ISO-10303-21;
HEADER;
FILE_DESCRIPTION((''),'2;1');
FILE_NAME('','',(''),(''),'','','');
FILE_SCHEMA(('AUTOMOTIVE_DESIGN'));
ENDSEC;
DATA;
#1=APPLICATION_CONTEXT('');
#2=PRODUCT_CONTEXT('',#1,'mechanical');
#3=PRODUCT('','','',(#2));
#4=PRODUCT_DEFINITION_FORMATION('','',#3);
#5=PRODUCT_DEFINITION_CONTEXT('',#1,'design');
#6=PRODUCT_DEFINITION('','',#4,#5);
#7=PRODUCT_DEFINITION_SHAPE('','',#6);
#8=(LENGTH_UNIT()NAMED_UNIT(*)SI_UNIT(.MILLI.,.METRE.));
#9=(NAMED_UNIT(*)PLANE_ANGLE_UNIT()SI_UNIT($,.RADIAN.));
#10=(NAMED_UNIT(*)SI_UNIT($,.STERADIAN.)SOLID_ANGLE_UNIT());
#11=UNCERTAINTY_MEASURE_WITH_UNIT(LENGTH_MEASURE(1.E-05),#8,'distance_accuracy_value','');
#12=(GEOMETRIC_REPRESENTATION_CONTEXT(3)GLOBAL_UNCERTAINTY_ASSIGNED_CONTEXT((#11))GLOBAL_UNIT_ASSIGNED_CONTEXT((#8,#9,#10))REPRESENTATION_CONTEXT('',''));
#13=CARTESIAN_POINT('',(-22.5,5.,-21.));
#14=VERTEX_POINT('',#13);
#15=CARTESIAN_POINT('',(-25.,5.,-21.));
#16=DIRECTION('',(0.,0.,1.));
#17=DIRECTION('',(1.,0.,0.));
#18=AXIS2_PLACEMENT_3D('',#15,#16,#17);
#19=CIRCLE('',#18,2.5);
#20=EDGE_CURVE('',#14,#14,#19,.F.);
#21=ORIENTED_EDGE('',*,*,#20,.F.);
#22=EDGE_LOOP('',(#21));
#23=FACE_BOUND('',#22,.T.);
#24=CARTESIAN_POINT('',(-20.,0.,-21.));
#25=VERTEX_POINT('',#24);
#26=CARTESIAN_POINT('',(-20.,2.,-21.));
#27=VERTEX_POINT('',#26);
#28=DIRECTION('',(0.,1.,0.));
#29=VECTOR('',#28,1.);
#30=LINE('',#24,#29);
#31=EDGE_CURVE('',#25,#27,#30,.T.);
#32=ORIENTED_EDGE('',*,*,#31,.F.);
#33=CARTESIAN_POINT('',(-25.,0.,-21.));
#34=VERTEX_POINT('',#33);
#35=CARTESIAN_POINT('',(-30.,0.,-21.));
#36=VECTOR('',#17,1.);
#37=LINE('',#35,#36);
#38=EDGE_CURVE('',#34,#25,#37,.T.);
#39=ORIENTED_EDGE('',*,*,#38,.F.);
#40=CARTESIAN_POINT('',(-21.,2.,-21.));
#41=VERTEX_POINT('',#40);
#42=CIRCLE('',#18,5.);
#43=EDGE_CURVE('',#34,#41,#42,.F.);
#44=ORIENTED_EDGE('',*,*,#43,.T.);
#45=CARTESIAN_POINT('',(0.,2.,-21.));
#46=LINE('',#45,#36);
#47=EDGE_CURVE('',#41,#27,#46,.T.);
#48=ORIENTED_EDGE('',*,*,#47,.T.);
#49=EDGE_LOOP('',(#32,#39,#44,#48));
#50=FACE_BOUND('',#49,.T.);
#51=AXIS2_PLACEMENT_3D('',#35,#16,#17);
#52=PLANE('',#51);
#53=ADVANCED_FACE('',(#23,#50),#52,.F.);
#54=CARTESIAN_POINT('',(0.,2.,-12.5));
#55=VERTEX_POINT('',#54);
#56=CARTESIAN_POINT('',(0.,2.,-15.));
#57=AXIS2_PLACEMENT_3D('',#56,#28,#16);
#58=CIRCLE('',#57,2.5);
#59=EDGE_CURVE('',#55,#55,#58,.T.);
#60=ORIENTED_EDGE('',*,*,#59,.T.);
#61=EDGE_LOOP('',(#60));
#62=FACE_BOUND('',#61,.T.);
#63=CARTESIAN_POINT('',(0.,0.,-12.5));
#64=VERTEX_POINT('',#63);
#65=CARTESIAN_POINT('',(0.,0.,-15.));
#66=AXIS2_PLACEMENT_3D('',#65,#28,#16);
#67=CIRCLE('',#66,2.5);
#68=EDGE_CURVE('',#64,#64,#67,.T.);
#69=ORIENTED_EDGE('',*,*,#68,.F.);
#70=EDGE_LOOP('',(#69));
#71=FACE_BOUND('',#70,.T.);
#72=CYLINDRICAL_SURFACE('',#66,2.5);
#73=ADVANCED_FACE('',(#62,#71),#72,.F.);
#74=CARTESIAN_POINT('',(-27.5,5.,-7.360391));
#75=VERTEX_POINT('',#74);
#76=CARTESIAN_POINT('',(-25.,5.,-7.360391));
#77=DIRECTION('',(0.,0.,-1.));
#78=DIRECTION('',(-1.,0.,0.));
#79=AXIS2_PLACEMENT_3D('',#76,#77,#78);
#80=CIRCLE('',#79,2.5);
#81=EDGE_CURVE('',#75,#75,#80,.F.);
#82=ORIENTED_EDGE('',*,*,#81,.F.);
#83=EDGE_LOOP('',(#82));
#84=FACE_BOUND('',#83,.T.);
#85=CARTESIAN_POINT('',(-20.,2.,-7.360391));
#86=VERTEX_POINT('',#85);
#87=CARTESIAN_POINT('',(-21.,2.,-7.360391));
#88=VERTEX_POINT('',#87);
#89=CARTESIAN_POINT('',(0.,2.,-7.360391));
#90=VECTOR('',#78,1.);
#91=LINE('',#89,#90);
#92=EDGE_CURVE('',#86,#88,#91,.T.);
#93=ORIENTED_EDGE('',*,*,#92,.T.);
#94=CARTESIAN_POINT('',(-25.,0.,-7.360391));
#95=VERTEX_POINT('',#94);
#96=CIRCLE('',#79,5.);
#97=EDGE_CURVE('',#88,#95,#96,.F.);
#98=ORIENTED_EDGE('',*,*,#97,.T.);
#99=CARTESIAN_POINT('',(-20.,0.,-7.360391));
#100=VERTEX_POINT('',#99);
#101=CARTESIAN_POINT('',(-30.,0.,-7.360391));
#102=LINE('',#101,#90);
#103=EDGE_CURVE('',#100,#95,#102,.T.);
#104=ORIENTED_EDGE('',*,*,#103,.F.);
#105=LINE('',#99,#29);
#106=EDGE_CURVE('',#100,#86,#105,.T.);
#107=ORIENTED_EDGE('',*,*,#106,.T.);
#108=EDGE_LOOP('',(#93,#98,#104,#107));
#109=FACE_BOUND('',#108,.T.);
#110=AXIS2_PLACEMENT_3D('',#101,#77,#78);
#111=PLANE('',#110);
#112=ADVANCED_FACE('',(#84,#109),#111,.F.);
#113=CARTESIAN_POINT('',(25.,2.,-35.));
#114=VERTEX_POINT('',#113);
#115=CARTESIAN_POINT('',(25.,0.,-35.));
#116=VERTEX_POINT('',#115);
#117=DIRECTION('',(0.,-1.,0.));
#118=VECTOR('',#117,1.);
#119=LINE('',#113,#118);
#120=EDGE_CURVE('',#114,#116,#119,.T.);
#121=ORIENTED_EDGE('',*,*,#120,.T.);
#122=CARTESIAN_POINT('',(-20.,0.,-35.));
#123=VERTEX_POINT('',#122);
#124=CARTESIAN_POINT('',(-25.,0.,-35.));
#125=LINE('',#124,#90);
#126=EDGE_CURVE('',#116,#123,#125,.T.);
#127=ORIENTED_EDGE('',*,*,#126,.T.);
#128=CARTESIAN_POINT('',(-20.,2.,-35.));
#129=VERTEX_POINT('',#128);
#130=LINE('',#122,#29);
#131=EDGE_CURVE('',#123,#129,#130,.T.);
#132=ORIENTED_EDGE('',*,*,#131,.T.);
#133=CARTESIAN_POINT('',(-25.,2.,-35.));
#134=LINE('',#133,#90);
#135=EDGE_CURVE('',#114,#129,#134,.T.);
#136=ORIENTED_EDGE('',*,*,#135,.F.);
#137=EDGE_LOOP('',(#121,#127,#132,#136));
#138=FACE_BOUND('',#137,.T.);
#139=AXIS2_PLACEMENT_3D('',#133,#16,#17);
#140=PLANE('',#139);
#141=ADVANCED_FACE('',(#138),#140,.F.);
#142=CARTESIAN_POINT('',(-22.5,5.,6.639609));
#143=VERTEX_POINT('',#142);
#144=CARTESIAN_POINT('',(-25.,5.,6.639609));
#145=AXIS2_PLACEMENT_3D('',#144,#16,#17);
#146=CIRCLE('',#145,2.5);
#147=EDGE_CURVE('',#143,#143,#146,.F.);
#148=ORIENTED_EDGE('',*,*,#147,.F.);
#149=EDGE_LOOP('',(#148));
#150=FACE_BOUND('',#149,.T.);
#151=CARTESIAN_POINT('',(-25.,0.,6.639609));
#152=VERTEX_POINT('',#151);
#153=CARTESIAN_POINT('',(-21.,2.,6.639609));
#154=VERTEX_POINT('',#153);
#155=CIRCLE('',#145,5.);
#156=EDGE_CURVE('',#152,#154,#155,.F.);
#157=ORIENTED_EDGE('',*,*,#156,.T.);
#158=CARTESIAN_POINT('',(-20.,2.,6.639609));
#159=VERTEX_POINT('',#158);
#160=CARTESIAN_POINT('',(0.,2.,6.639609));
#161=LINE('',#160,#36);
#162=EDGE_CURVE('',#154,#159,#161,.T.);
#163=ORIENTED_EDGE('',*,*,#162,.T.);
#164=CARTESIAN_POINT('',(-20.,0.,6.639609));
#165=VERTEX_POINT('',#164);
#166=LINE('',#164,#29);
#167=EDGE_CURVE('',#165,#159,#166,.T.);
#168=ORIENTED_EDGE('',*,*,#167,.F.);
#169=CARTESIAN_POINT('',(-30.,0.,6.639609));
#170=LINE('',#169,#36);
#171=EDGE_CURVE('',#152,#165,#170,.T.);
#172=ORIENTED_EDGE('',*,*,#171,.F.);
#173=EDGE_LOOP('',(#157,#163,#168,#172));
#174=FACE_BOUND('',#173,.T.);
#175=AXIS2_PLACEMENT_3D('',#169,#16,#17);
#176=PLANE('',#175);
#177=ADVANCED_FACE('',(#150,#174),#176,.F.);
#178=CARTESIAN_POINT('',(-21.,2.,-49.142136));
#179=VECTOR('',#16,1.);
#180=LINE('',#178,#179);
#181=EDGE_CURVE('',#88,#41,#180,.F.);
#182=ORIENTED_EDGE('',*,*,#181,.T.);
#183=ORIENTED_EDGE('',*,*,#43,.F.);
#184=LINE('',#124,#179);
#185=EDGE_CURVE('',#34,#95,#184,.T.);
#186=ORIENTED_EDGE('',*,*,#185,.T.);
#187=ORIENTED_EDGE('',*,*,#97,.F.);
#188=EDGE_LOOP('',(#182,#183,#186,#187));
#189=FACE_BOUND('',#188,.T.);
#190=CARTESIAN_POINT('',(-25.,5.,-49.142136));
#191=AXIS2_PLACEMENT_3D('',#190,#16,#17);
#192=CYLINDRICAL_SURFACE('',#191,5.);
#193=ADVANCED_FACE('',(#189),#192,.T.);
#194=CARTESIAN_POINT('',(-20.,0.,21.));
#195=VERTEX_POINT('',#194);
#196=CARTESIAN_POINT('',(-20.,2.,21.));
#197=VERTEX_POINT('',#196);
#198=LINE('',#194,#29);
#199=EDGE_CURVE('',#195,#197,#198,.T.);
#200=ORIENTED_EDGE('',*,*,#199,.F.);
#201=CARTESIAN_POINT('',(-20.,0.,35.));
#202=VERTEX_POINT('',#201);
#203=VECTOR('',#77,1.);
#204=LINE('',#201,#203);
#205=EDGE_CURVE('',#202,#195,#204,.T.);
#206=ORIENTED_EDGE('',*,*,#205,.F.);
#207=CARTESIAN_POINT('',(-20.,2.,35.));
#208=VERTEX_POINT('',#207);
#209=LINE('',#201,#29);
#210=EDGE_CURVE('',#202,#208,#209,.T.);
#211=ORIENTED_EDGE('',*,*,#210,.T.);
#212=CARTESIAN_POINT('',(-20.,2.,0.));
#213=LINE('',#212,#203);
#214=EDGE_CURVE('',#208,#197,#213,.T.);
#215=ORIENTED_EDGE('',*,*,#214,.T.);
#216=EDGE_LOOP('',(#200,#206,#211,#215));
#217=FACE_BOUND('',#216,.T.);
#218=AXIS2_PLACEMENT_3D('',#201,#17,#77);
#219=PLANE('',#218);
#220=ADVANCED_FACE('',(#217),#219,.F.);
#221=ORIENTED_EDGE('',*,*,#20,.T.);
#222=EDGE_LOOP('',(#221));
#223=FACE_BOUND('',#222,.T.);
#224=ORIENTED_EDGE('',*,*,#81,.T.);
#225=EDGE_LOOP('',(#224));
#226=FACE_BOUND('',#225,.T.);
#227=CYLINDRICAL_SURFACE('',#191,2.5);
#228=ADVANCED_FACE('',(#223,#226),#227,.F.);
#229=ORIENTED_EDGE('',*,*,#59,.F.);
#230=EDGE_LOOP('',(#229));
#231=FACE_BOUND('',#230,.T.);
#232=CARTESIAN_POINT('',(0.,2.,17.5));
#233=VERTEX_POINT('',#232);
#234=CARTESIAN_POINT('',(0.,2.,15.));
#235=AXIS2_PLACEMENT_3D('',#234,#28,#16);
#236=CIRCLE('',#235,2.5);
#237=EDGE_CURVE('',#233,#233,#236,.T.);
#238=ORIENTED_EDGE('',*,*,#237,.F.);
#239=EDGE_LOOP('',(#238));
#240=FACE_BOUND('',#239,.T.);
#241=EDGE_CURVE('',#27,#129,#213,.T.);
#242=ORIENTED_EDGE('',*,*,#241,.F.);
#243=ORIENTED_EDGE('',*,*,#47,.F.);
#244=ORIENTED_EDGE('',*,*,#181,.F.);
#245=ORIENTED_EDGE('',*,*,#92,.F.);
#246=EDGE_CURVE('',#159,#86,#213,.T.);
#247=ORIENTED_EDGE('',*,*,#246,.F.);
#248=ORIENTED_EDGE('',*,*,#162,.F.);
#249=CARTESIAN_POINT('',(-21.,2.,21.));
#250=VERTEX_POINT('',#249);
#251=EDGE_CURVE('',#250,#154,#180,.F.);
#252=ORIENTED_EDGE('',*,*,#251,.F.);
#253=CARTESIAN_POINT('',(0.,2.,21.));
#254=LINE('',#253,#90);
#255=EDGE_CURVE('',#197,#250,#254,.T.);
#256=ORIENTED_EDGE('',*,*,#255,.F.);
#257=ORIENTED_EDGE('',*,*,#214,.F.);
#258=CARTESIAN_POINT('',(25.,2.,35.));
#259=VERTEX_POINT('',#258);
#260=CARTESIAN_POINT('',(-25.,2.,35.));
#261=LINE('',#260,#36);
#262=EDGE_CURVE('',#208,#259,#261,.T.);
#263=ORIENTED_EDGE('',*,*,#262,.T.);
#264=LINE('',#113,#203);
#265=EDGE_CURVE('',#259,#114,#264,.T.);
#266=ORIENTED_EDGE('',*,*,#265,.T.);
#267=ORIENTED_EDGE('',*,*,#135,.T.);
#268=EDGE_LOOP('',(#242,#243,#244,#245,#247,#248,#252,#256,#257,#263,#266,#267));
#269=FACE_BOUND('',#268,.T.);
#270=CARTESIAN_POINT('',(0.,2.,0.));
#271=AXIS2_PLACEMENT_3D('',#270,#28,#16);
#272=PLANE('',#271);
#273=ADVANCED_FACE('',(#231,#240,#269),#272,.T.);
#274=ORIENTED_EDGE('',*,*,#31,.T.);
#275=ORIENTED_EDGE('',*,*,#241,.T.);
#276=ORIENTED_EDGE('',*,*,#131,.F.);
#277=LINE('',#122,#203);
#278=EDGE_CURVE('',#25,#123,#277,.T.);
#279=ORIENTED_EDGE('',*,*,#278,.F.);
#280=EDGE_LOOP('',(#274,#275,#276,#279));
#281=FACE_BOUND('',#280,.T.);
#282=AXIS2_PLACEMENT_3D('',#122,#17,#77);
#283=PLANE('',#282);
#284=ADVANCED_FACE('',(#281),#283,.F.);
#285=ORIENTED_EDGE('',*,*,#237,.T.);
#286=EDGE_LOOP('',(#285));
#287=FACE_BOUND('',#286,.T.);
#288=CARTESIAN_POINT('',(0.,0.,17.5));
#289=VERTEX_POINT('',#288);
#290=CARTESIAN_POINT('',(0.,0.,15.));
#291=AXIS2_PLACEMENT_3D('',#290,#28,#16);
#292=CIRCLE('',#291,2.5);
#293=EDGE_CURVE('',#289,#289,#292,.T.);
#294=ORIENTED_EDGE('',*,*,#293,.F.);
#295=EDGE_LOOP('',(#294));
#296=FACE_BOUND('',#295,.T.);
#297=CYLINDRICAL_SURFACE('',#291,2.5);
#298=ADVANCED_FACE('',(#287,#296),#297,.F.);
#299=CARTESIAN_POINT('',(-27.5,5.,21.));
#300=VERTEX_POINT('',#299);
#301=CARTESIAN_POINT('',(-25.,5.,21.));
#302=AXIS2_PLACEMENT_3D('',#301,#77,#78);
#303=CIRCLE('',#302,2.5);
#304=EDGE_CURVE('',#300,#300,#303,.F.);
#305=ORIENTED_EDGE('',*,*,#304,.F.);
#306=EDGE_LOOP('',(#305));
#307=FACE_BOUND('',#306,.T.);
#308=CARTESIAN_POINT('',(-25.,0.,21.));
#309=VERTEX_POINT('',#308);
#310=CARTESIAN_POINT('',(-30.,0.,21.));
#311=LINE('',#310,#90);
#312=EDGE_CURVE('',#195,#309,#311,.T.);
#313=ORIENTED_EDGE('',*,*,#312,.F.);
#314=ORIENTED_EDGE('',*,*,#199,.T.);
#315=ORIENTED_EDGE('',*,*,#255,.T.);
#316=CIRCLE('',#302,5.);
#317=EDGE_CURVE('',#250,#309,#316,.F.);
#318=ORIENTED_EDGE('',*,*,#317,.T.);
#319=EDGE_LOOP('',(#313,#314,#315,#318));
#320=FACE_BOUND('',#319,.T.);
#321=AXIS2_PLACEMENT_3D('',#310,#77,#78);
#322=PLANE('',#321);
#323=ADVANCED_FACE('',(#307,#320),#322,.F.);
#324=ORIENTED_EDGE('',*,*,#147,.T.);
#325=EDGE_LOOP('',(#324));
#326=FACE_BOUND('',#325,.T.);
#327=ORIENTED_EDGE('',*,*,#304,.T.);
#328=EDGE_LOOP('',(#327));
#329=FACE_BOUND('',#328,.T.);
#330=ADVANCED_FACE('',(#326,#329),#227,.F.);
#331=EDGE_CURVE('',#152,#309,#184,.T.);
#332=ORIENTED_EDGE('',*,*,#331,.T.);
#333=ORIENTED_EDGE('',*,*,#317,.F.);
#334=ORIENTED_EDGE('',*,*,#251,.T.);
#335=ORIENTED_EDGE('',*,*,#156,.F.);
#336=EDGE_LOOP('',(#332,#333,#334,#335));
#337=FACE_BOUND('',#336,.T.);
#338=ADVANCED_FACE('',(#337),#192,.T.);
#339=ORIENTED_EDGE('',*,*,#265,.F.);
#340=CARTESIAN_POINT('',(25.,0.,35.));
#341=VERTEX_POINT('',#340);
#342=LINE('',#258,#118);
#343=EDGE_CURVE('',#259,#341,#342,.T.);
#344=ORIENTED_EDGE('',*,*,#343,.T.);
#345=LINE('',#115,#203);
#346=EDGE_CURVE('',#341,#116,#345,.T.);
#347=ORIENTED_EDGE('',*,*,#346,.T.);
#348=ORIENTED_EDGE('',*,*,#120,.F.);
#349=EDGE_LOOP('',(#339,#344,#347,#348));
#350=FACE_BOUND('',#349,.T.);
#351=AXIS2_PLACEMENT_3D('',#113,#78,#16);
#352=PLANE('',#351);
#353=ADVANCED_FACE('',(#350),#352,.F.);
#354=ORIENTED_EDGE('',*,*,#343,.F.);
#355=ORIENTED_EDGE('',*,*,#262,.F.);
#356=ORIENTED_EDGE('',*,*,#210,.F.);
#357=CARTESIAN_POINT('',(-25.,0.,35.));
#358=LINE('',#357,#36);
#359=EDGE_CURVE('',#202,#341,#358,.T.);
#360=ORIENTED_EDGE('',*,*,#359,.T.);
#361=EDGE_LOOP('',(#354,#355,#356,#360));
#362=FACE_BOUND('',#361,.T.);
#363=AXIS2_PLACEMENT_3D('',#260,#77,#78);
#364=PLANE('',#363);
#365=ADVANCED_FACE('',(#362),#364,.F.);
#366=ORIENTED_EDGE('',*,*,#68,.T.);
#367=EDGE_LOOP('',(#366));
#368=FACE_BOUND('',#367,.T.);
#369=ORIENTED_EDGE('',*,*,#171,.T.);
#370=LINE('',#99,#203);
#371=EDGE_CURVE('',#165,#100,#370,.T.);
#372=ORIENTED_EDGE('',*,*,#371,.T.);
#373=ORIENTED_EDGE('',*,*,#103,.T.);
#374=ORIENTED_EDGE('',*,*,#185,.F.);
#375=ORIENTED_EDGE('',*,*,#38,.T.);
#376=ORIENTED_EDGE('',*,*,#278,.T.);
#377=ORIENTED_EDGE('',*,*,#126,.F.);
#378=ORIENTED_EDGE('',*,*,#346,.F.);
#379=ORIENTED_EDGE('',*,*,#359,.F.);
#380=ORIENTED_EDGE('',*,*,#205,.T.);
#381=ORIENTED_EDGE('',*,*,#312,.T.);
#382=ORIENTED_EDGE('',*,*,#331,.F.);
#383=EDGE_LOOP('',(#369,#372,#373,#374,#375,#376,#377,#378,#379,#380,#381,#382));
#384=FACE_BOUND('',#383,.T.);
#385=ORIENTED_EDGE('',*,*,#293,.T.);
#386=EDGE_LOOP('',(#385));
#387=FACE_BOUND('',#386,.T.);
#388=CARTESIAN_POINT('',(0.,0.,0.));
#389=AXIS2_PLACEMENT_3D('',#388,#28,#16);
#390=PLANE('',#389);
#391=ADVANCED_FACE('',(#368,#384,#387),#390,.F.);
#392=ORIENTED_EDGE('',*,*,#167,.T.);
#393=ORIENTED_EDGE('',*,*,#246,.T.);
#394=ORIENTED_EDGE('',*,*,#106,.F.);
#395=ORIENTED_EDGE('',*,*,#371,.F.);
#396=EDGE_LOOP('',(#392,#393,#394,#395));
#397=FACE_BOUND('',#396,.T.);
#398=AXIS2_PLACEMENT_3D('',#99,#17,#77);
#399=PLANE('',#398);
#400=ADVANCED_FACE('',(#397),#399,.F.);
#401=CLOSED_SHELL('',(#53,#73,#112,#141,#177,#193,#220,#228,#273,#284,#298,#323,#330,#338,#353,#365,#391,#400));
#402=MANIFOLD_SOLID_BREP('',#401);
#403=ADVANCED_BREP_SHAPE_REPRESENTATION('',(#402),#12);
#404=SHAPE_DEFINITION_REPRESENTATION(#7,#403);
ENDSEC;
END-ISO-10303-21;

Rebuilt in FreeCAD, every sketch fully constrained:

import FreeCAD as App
import Part
import Sketcher

V = App.Vector

doc = App.newDocument("Part")
body = doc.addObject("PartDesign::Body", "Body")

# Sketch on XZ plane
sketch1 = body.newObject("Sketcher::SketchObject", "Sketch")
sketch1.AttachmentSupport = (doc.getObject("XZ_Plane"), [""])
sketch1.MapMode = "FlatFace"
sketch1.addGeometry(Part.LineSegment(V(-25, -35, 0), V(-25, 35, 0)), False)
sketch1.addGeometry(Part.LineSegment(V(-25, 35, 0), V(25, 35, 0)), False)
sketch1.addGeometry(Part.LineSegment(V(25, 35, 0), V(25, -35, 0)), False)
sketch1.addGeometry(Part.LineSegment(V(25, -35, 0), V(-25, -35, 0)), False)
sketch1.addConstraint(Sketcher.Constraint("Coincident", 0, 2, 1, 1))
sketch1.addConstraint(Sketcher.Constraint("Coincident", 1, 2, 2, 1))
sketch1.addConstraint(Sketcher.Constraint("Coincident", 2, 2, 3, 1))
sketch1.addConstraint(Sketcher.Constraint("Coincident", 3, 2, 0, 1))
sketch1.addConstraint(Sketcher.Constraint("Vertical", 0))
sketch1.addConstraint(Sketcher.Constraint("Horizontal", 1))
sketch1.addConstraint(Sketcher.Constraint("Vertical", 2))
sketch1.addConstraint(Sketcher.Constraint("Horizontal", 3))
sketch1.addConstraint(Sketcher.Constraint("Symmetric", 0, 2, 2, 2, -1, 1))
sketch1.addConstraint(Sketcher.Constraint("DistanceX", 1, 1, 1, 2, 50.0))
sketch1.addConstraint(Sketcher.Constraint("DistanceY", 0, 1, 0, 2, 70.0))
pad1 = body.newObject("PartDesign::Pad", "Pad")
pad1.Profile = sketch1
pad1.Length = 2
pad1.Reversed = True

# Sketch on XY plane
sketch2 = body.newObject("Sketcher::SketchObject", "Sketch001")
sketch2.AttachmentSupport = (doc.getObject("XY_Plane"), [""])
sketch2.MapMode = "FlatFace"
sketch2.AttachmentOffset = App.Placement(V(0, 0, 35), App.Rotation())
sketch2.addGeometry(Part.Circle(V(-25, 5, 0), V(0, 0, 1), 5), False)
sketch2.addGeometry(Part.Circle(V(-25, 5, 0), V(0, 0, 1), 2.5), False)
sketch2.addConstraint(Sketcher.Constraint("Coincident", 1, 3, 0, 3))
sketch2.addConstraint(Sketcher.Constraint("Diameter", 0, 10.0))
sketch2.addConstraint(Sketcher.Constraint("Diameter", 1, 5.0))
sketch2.addConstraint(Sketcher.Constraint("DistanceX", 0, 3, -1, 1, 25.0))
sketch2.addConstraint(Sketcher.Constraint("DistanceY", -1, 1, 0, 3, 5.0))
pad2 = body.newObject("PartDesign::Pad", "Pad001")
pad2.Profile = sketch2
pad2.Length = 70
pad2.Reversed = True

# Sketch on XZ plane
sketch3 = body.newObject("Sketcher::SketchObject", "Sketch002")
sketch3.AttachmentSupport = (doc.getObject("XZ_Plane"), [""])
sketch3.MapMode = "FlatFace"
sketch3.AttachmentOffset = App.Placement(V(0, 0, -2), App.Rotation())
sketch3.addGeometry(Part.Circle(V(0, -15, 0), V(0, 0, 1), 2.5), False)
sketch3.addGeometry(Part.Circle(V(0, 15, 0), V(0, 0, 1), 2.5), False)
sketch3.addConstraint(Sketcher.Constraint("Equal", 0, 1))
sketch3.addConstraint(Sketcher.Constraint("Symmetric", 0, 3, 1, 3, -1, 1))
sketch3.addConstraint(Sketcher.Constraint("PointOnObject", 0, 3, -2))
sketch3.addConstraint(Sketcher.Constraint("Diameter", 0, 5.0))
sketch3.addConstraint(Sketcher.Constraint("DistanceY", 0, 3, -1, 1, 15.0))
pocket1 = body.newObject("PartDesign::Pocket", "Pocket")
pocket1.Profile = sketch3
pocket1.Type = "ThroughAll"
pocket1.Reversed = True

# Sketch on XZ plane
sketch4 = body.newObject("Sketcher::SketchObject", "Sketch003")
sketch4.AttachmentSupport = (doc.getObject("XZ_Plane"), [""])
sketch4.MapMode = "FlatFace"
sketch4.AttachmentOffset = App.Placement(V(0, 0, -2), App.Rotation())
sketch4.addGeometry(Part.LineSegment(V(-30, -35, 0), V(-30, -21, 0)), False)
sketch4.addGeometry(Part.LineSegment(V(-30, -21, 0), V(-20, -21, 0)), False)
sketch4.addGeometry(Part.LineSegment(V(-20, -21, 0), V(-20, -35, 0)), False)
sketch4.addGeometry(Part.LineSegment(V(-20, -35, 0), V(-30, -35, 0)), False)
sketch4.addGeometry(Part.LineSegment(V(-30, -7, 0), V(-30, 7, 0)), False)
sketch4.addGeometry(Part.LineSegment(V(-30, 7, 0), V(-20, 7, 0)), False)
sketch4.addGeometry(Part.LineSegment(V(-20, 7, 0), V(-20, -7, 0)), False)
sketch4.addGeometry(Part.LineSegment(V(-20, -7, 0), V(-30, -7, 0)), False)
sketch4.addGeometry(Part.LineSegment(V(-30, 21, 0), V(-30, 35, 0)), False)
sketch4.addGeometry(Part.LineSegment(V(-30, 35, 0), V(-20, 35, 0)), False)
sketch4.addGeometry(Part.LineSegment(V(-20, 35, 0), V(-20, 21, 0)), False)
sketch4.addGeometry(Part.LineSegment(V(-20, 21, 0), V(-30, 21, 0)), False)
sketch4.addConstraint(Sketcher.Constraint("Coincident", 0, 2, 1, 1))
sketch4.addConstraint(Sketcher.Constraint("Coincident", 1, 2, 2, 1))
sketch4.addConstraint(Sketcher.Constraint("Coincident", 2, 2, 3, 1))
sketch4.addConstraint(Sketcher.Constraint("Coincident", 3, 2, 0, 1))
sketch4.addConstraint(Sketcher.Constraint("Coincident", 4, 2, 5, 1))
sketch4.addConstraint(Sketcher.Constraint("Coincident", 5, 2, 6, 1))
sketch4.addConstraint(Sketcher.Constraint("Coincident", 6, 2, 7, 1))
sketch4.addConstraint(Sketcher.Constraint("Coincident", 7, 2, 4, 1))
sketch4.addConstraint(Sketcher.Constraint("Coincident", 8, 2, 9, 1))
sketch4.addConstraint(Sketcher.Constraint("Coincident", 9, 2, 10, 1))
sketch4.addConstraint(Sketcher.Constraint("Coincident", 10, 2, 11, 1))
sketch4.addConstraint(Sketcher.Constraint("Coincident", 11, 2, 8, 1))
sketch4.addConstraint(Sketcher.Constraint("Vertical", 0))
sketch4.addConstraint(Sketcher.Constraint("Horizontal", 1))
sketch4.addConstraint(Sketcher.Constraint("Vertical", 2))
sketch4.addConstraint(Sketcher.Constraint("Horizontal", 3))
sketch4.addConstraint(Sketcher.Constraint("Vertical", 4))
sketch4.addConstraint(Sketcher.Constraint("Horizontal", 5))
sketch4.addConstraint(Sketcher.Constraint("Vertical", 6))
sketch4.addConstraint(Sketcher.Constraint("Horizontal", 7))
sketch4.addConstraint(Sketcher.Constraint("Vertical", 8))
sketch4.addConstraint(Sketcher.Constraint("Horizontal", 9))
sketch4.addConstraint(Sketcher.Constraint("Vertical", 10))
sketch4.addConstraint(Sketcher.Constraint("Horizontal", 11))
sketch4.addConstraint(Sketcher.Constraint("Symmetric", 3, 2, 8, 2, -1))
sketch4.addConstraint(Sketcher.Constraint("Symmetric", 1, 2, 10, 2, -1))
sketch4.addConstraint(Sketcher.Constraint("Vertical", 3, 2, 4, 2))
sketch4.addConstraint(Sketcher.Constraint("Vertical", 2, 2, 5, 2))
sketch4.addConstraint(Sketcher.Constraint("Equal", 2, 4))
sketch4.addConstraint(Sketcher.Constraint("DistanceX", 1, 1, 1, 2, 10.0))
sketch4.addConstraint(Sketcher.Constraint("DistanceY", 0, 1, 0, 2, 14.0))
sketch4.addConstraint(Sketcher.Constraint("DistanceX", 0, 2, -1, 1, 30.0))
sketch4.addConstraint(Sketcher.Constraint("DistanceY", 0, 2, -1, 1, 21.0))
sketch4.addConstraint(Sketcher.Constraint("DistanceY", -1, 1, 4, 2, 6.639609))
pocket2 = body.newObject("PartDesign::Pocket", "Pocket001")
pocket2.Profile = sketch4
pocket2.Type = "ThroughAll"
pocket2.Midplane = True

doc.recompute()
